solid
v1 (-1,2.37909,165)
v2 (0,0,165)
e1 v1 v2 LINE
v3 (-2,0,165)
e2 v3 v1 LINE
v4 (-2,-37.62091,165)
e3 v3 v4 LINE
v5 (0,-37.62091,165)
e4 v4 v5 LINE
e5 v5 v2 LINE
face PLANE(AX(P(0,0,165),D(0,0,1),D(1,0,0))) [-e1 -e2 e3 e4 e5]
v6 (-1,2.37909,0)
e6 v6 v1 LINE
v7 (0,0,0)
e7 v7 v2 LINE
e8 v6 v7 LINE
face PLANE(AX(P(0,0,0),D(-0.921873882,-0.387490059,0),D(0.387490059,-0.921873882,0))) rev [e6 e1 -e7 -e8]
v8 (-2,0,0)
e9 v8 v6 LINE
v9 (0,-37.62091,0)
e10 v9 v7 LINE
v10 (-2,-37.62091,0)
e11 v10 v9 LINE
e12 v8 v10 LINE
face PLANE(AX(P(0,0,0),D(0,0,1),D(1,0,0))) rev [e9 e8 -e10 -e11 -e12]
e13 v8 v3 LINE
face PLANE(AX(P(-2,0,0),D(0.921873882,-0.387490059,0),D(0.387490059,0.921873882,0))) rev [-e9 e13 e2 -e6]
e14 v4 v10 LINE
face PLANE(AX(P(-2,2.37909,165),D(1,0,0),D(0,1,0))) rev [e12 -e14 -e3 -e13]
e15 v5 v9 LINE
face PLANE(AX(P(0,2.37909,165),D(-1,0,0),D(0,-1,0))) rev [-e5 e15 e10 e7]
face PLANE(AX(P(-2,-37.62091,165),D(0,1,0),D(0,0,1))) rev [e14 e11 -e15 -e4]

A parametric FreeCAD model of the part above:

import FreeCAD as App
import Part
import Sketcher

V = App.Vector
Q = App.Units.Quantity


def add_polygon(sketch, points):
    """Adds a closed chain of lines whose ends are joined by coincident constraints."""
    first, n = sketch.GeometryCount, len(points)
    for a, b in zip(points, points[1:] + points[:1]):
        sketch.addGeometry(Part.LineSegment(App.Vector(*a, 0), App.Vector(*b, 0)), False)
    for i in range(n):
        sketch.addConstraint(Sketcher.Constraint("Coincident", first + i, 2, first + (i + 1) % n, 1))

doc = App.newDocument("Part")
body = doc.addObject("PartDesign::Body", "Body")

sketch1 = doc.addObject("Sketcher::SketchObject", "Sketch")
body.addObject(sketch1)
sketch1.AttachmentSupport = (doc.XY_Plane, [""])
sketch1.MapMode = "FlatFace"
add_polygon(sketch1, [(-2, 2.37909), (-2, -37.62091), (0, -37.62091), (0, 2.37909)])
sketch1.addConstraint([
    Sketcher.Constraint("Vertical", 0),
    Sketcher.Constraint("Horizontal", 1),
    Sketcher.Constraint("Vertical", 2),
    Sketcher.Constraint("Horizontal", 3),
    Sketcher.Constraint("PointOnObject", 1, 2, -2),
    Sketcher.Constraint("DistanceX", 1, 1, 1, 2, Q("2 mm")),
    Sketcher.Constraint("DistanceY", 0, 2, 0, 1, Q("40 mm")),
    Sketcher.Constraint("DistanceY", 0, 2, -1, 1, Q("37.62091 mm")),
])
pad1 = doc.addObject("PartDesign::Pad", "Pad")
body.addObject(pad1)
pad1.Profile = sketch1
pad1.Length = 165

sketch2 = doc.addObject("Sketcher::SketchObject", "Sketch001")
body.addObject(sketch2)
sketch2.AttachmentSupport = (doc.XY_Plane, [""])
sketch2.MapMode = "FlatFace"
sketch2.AttachmentOffset = App.Placement(V(0, 0, 165), App.Rotation())
add_polygon(sketch2, [(0, 2.37909), (-1, 2.37909), (0, 0)])
sketch2.addConstraint([
    Sketcher.Constraint("Horizontal", 0),
    Sketcher.Constraint("Vertical", 2),
    Sketcher.Constraint("Coincident", 1, 2, -1, 1),
    Sketcher.Constraint("DistanceX", 0, 2, 0, 1, Q("1 mm")),
    Sketcher.Constraint("DistanceY", 2, 1, 2, 2, Q("2.37909 mm")),
])
pocket1 = doc.addObject("PartDesign::Pocket", "Pocket")
body.addObject(pocket1)
pocket1.Profile = sketch2
pocket1.Length = 165

sketch3 = doc.addObject("Sketcher::SketchObject", "Sketch002")
body.addObject(sketch3)
sketch3.AttachmentSupport = (doc.XY_Plane, [""])
sketch3.MapMode = "FlatFace"
sketch3.AttachmentOffset = App.Placement(V(0, 0, 165), App.Rotation())
add_polygon(sketch3, [(-1, 2.37909), (-2, 2.37909), (-2, 0)])
sketch3.addConstraint([
    Sketcher.Constraint("Horizontal", 0),
    Sketcher.Constraint("Vertical", 1),
    Sketcher.Constraint("PointOnObject", 1, 2, -1),
    Sketcher.Constraint("DistanceX", 0, 2, 0, 1, Q("1 mm")),
    Sketcher.Constraint("DistanceX", 0, 2, -1, 1, Q("2 mm")),
    Sketcher.Constraint("DistanceY", 1, 2, 1, 1, Q("2.37909 mm")),
])
pocket2 = doc.addObject("PartDesign::Pocket", "Pocket001")
body.addObject(pocket2)
pocket2.Profile = sketch3
pocket2.Length = 165

doc.recompute()
